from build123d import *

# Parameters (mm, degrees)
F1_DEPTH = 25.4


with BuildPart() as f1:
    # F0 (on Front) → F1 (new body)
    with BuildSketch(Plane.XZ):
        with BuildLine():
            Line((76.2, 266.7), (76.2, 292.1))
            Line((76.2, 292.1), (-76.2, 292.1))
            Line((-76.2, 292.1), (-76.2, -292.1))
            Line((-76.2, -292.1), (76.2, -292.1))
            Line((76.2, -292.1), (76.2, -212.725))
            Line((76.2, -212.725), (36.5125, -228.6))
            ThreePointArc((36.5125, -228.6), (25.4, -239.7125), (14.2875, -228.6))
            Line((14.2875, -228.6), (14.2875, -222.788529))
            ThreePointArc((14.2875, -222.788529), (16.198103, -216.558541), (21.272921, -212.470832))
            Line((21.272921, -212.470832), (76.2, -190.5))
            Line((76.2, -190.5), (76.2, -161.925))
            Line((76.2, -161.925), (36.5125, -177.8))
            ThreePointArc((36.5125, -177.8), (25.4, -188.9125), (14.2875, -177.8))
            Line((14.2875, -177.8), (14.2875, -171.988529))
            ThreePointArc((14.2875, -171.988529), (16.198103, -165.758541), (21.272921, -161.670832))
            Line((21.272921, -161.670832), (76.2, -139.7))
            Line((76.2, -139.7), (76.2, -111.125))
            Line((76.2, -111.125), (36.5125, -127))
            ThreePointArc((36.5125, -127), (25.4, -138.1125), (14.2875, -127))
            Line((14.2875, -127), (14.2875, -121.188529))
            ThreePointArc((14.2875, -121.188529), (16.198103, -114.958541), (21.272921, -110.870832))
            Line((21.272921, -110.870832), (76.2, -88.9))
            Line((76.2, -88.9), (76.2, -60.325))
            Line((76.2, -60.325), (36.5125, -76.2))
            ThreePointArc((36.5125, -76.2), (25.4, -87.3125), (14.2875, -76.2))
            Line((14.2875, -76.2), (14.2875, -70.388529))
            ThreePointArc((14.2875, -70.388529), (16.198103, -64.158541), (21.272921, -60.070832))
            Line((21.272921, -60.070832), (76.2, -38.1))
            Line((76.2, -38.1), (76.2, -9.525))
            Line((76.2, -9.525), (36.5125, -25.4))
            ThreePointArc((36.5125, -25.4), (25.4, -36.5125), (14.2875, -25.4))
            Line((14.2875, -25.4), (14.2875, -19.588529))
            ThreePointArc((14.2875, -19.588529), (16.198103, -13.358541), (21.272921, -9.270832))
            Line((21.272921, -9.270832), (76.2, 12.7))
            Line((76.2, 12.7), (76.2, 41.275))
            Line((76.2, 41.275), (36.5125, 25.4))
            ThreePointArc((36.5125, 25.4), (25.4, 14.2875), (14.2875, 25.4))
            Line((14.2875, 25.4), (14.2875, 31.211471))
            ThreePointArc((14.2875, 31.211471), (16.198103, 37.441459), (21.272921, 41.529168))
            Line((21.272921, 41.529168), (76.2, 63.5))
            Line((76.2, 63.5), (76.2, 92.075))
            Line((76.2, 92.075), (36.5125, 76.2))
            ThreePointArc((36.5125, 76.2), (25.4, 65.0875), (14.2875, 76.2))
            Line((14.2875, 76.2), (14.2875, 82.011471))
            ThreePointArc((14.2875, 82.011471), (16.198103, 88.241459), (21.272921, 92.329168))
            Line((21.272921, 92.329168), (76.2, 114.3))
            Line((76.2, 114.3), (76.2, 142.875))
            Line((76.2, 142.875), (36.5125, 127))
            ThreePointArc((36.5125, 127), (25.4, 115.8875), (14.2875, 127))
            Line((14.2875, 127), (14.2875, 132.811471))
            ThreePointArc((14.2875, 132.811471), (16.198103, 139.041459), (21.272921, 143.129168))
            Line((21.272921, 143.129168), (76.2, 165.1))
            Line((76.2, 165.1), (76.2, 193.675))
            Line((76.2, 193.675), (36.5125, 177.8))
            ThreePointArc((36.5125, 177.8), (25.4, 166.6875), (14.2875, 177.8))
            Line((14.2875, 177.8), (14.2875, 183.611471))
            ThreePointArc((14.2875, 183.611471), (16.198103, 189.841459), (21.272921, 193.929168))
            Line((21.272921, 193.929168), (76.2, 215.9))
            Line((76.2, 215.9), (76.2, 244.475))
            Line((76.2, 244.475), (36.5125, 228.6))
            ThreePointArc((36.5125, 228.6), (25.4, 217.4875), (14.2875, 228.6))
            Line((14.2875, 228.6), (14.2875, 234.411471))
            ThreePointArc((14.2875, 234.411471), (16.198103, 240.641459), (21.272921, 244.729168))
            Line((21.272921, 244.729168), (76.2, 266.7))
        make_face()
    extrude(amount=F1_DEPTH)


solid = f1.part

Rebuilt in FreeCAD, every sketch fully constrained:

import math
import FreeCAD as App
import Part
import Sketcher

V = App.Vector
Q = App.Units.Quantity

doc = App.newDocument("Part")
body = doc.addObject("PartDesign::Body", "Body")

# Sketch on XZ plane
sketch1 = body.newObject("Sketcher::SketchObject", "Sketch")
sketch1.AttachmentSupport = (doc.getObject("XZ_Plane"), [""])
sketch1.MapMode = "FlatFace"
sketch1.addGeometry(Part.LineSegment(V(76.2, 266.7, 0), V(76.2, 292.1, 0)), False)
sketch1.addGeometry(Part.LineSegment(V(76.2, 292.1, 0), V(-76.2, 292.1, 0)), False)
sketch1.addGeometry(Part.LineSegment(V(-76.2, 292.1, 0), V(-76.2, -292.1, 0)), False)
sketch1.addGeometry(Part.LineSegment(V(-76.2, -292.1, 0), V(76.2, -292.1, 0)), False)
sketch1.addGeometry(Part.LineSegment(V(76.2, -292.1, 0), V(76.2, -212.725, 0)), False)
sketch1.addGeometry(Part.LineSegment(V(76.2, -212.725, 0), V(36.5125, -228.6, 0)), False)
sketch1.addGeometry(Part.ArcOfCircle(Part.Circle(V(25.4, -228.6, 0), V(0, 0, 1), 11.1125), math.radians(180), math.radians(360)), False)
sketch1.addGeometry(Part.LineSegment(V(14.2875, -228.6, 0), V(14.2875, -222.788529, 0)), False)
sketch1.addGeometry(Part.ArcOfCircle(Part.Circle(V(25.399999, -222.788528, 0), V(0, 0, 1), 11.112499), math.radians(111.801406), math.radians(180.000003)), False)
sketch1.addGeometry(Part.LineSegment(V(21.272921, -212.470832, 0), V(76.2, -190.5, 0)), False)
sketch1.addGeometry(Part.LineSegment(V(76.2, -190.5, 0), V(76.2, -161.925, 0)), False)
sketch1.addGeometry(Part.LineSegment(V(76.2, -161.925, 0), V(36.5125, -177.8, 0)), False)
sketch1.addGeometry(Part.ArcOfCircle(Part.Circle(V(25.4, -177.8, 0), V(0, 0, 1), 11.1125), math.radians(180), math.radians(360)), False)
sketch1.addGeometry(Part.LineSegment(V(14.2875, -177.8, 0), V(14.2875, -171.988529, 0)), False)
sketch1.addGeometry(Part.ArcOfCircle(Part.Circle(V(25.399999, -171.988528, 0), V(0, 0, 1), 11.112499), math.radians(111.801406), math.radians(180.000003)), False)
sketch1.addGeometry(Part.LineSegment(V(21.272921, -161.670832, 0), V(76.2, -139.7, 0)), False)
sketch1.addGeometry(Part.LineSegment(V(76.2, -139.7, 0), V(76.2, -111.125, 0)), False)
sketch1.addGeometry(Part.LineSegment(V(76.2, -111.125, 0), V(36.5125, -127, 0)), False)
sketch1.addGeometry(Part.ArcOfCircle(Part.Circle(V(25.4, -127, 0), V(0, 0, 1), 11.1125), math.radians(180), math.radians(360)), False)
sketch1.addGeometry(Part.LineSegment(V(14.2875, -127, 0), V(14.2875, -121.188529, 0)), False)
sketch1.addGeometry(Part.ArcOfCircle(Part.Circle(V(25.399999, -121.188528, 0), V(0, 0, 1), 11.112499), math.radians(111.801406), math.radians(180.000003)), False)
sketch1.addGeometry(Part.LineSegment(V(21.272921, -110.870832, 0), V(76.2, -88.9, 0)), False)
sketch1.addGeometry(Part.LineSegment(V(76.2, -88.9, 0), V(76.2, -60.325, 0)), False)
sketch1.addGeometry(Part.LineSegment(V(76.2, -60.325, 0), V(36.5125, -76.2, 0)), False)
sketch1.addGeometry(Part.ArcOfCircle(Part.Circle(V(25.4, -76.2, 0), V(0, 0, 1), 11.1125), math.radians(180), math.radians(360)), False)
sketch1.addGeometry(Part.LineSegment(V(14.2875, -76.2, 0), V(14.2875, -70.388529, 0)), False)
sketch1.addGeometry(Part.ArcOfCircle(Part.Circle(V(25.399999, -70.388528, 0), V(0, 0, 1), 11.112499), math.radians(111.801406), math.radians(180.000003)), False)
sketch1.addGeometry(Part.LineSegment(V(21.272921, -60.070832, 0), V(76.2, -38.1, 0)), False)
sketch1.addGeometry(Part.LineSegment(V(76.2, -38.1, 0), V(76.2, -9.525, 0)), False)
sketch1.addGeometry(Part.LineSegment(V(76.2, -9.525, 0), V(36.5125, -25.4, 0)), False)
sketch1.addGeometry(Part.ArcOfCircle(Part.Circle(V(25.4, -25.4, 0), V(0, 0, 1), 11.1125), math.radians(180), math.radians(360)), False)
sketch1.addGeometry(Part.LineSegment(V(14.2875, -25.4, 0), V(14.2875, -19.588529, 0)), False)
sketch1.addGeometry(Part.ArcOfCircle(Part.Circle(V(25.399999, -19.588528, 0), V(0, 0, 1), 11.112499), math.radians(111.801406), math.radians(180.000003)), False)
sketch1.addGeometry(Part.LineSegment(V(21.272921, -9.270832, 0), V(76.2, 12.7, 0)), False)
sketch1.addGeometry(Part.LineSegment(V(76.2, 12.7, 0), V(76.2, 41.275, 0)), False)
sketch1.addGeometry(Part.LineSegment(V(76.2, 41.275, 0), V(36.5125, 25.4, 0)), False)
sketch1.addGeometry(Part.ArcOfCircle(Part.Circle(V(25.4, 25.4, 0), V(0, 0, 1), 11.1125), math.radians(180), math.radians(360)), False)
sketch1.addGeometry(Part.LineSegment(V(14.2875, 25.4, 0), V(14.2875, 31.211471, 0)), False)
sketch1.addGeometry(Part.ArcOfCircle(Part.Circle(V(25.399999, 31.211472, 0), V(0, 0, 1), 11.112499), math.radians(111.801406), math.radians(180.000003)), False)
sketch1.addGeometry(Part.LineSegment(V(21.272921, 41.529168, 0), V(76.2, 63.5, 0)), False)
sketch1.addGeometry(Part.LineSegment(V(76.2, 63.5, 0), V(76.2, 92.075, 0)), False)
sketch1.addGeometry(Part.LineSegment(V(76.2, 92.075, 0), V(36.5125, 76.2, 0)), False)
sketch1.addGeometry(Part.ArcOfCircle(Part.Circle(V(25.4, 76.2, 0), V(0, 0, 1), 11.1125), math.radians(180), math.radians(360)), False)
sketch1.addGeometry(Part.LineSegment(V(14.2875, 76.2, 0), V(14.2875, 82.011471, 0)), False)
sketch1.addGeometry(Part.ArcOfCircle(Part.Circle(V(25.399999, 82.011472, 0), V(0, 0, 1), 11.112499), math.radians(111.801406), math.radians(180.000003)), False)
sketch1.addGeometry(Part.LineSegment(V(21.272921, 92.329168, 0), V(76.2, 114.3, 0)), False)
sketch1.addGeometry(Part.LineSegment(V(76.2, 114.3, 0), V(76.2, 142.875, 0)), False)
sketch1.addGeometry(Part.LineSegment(V(76.2, 142.875, 0), V(36.5125, 127, 0)), False)
sketch1.addGeometry(Part.ArcOfCircle(Part.Circle(V(25.4, 127, 0), V(0, 0, 1), 11.1125), math.radians(180), math.radians(360)), False)
sketch1.addGeometry(Part.LineSegment(V(14.2875, 127, 0), V(14.2875, 132.811471, 0)), False)
sketch1.addGeometry(Part.ArcOfCircle(Part.Circle(V(25.399999, 132.811472, 0), V(0, 0, 1), 11.112499), math.radians(111.801406), math.radians(180.000003)), False)
sketch1.addGeometry(Part.LineSegment(V(21.272921, 143.129168, 0), V(76.2, 165.1, 0)), False)
sketch1.addGeometry(Part.LineSegment(V(76.2, 165.1, 0), V(76.2, 193.675, 0)), False)
sketch1.addGeometry(Part.LineSegment(V(76.2, 193.675, 0), V(36.5125, 177.8, 0)), False)
sketch1.addGeometry(Part.ArcOfCircle(Part.Circle(V(25.4, 177.8, 0), V(0, 0, 1), 11.1125), math.radians(180), math.radians(360)), False)
sketch1.addGeometry(Part.LineSegment(V(14.2875, 177.8, 0), V(14.2875, 183.611471, 0)), False)
sketch1.addGeometry(Part.ArcOfCircle(Part.Circle(V(25.399999, 183.611472, 0), V(0, 0, 1), 11.112499), math.radians(111.801406), math.radians(180.000003)), False)
sketch1.addGeometry(Part.LineSegment(V(21.272921, 193.929168, 0), V(76.2, 215.9, 0)), False)
sketch1.addGeometry(Part.LineSegment(V(76.2, 215.9, 0), V(76.2, 244.475, 0)), False)
sketch1.addGeometry(Part.LineSegment(V(76.2, 244.475, 0), V(36.5125, 228.6, 0)), False)
sketch1.addGeometry(Part.ArcOfCircle(Part.Circle(V(25.4, 228.6, 0), V(0, 0, 1), 11.1125), math.radians(180), math.radians(360)), False)
sketch1.addGeometry(Part.LineSegment(V(14.2875, 228.6, 0), V(14.2875, 234.411471, 0)), False)
sketch1.addGeometry(Part.ArcOfCircle(Part.Circle(V(25.399999, 234.411472, 0), V(0, 0, 1), 11.112499), math.radians(111.801406), math.radians(180.000003)), False)
sketch1.addGeometry(Part.LineSegment(V(21.272921, 244.729168, 0), V(76.2, 266.7, 0)), False)
sketch1.addConstraint(Sketcher.Constraint("Coincident", 0, 2, 1, 1))
sketch1.addConstraint(Sketcher.Constraint("Coincident", 1, 2, 2, 1))
sketch1.addConstraint(Sketcher.Constraint("Coincident", 2, 2, 3, 1))
sketch1.addConstraint(Sketcher.Constraint("Coincident", 3, 2, 4, 1))
sketch1.addConstraint(Sketcher.Constraint("Coincident", 4, 2, 5, 1))
sketch1.addConstraint(Sketcher.Constraint("Coincident", 5, 2, 6, 2))
sketch1.addConstraint(Sketcher.Constraint("Tangent", 6, 1, 7, 1))
sketch1.addConstraint(Sketcher.Constraint("Tangent", 7, 2, 8, 2))
sketch1.addConstraint(Sketcher.Constraint("Tangent", 8, 1, 9, 1))
sketch1.addConstraint(Sketcher.Constraint("Coincident", 9, 2, 10, 1))
sketch1.addConstraint(Sketcher.Constraint("Coincident", 10, 2, 11, 1))
sketch1.addConstraint(Sketcher.Constraint("Coincident", 11, 2, 12, 2))
sketch1.addConstraint(Sketcher.Constraint("Tangent", 12, 1, 13, 1))
sketch1.addConstraint(Sketcher.Constraint("Tangent", 13, 2, 14, 2))
sketch1.addConstraint(Sketcher.Constraint("Tangent", 14, 1, 15, 1))
sketch1.addConstraint(Sketcher.Constraint("Coincident", 15, 2, 16, 1))
sketch1.addConstraint(Sketcher.Constraint("Coincident", 16, 2, 17, 1))
sketch1.addConstraint(Sketcher.Constraint("Coincident", 17, 2, 18, 2))
sketch1.addConstraint(Sketcher.Constraint("Tangent", 18, 1, 19, 1))
sketch1.addConstraint(Sketcher.Constraint("Tangent", 19, 2, 20, 2))
sketch1.addConstraint(Sketcher.Constraint("Tangent", 20, 1, 21, 1))
sketch1.addConstraint(Sketcher.Constraint("Coincident", 21, 2, 22, 1))
sketch1.addConstraint(Sketcher.Constraint("Coincident", 22, 2, 23, 1))
sketch1.addConstraint(Sketcher.Constraint("Coincident", 23, 2, 24, 2))
sketch1.addConstraint(Sketcher.Constraint("Tangent", 24, 1, 25, 1))
sketch1.addConstraint(Sketcher.Constraint("Tangent", 25, 2, 26, 2))
sketch1.addConstraint(Sketcher.Constraint("Tangent", 26, 1, 27, 1))
sketch1.addConstraint(Sketcher.Constraint("Coincident", 27, 2, 28, 1))
sketch1.addConstraint(Sketcher.Constraint("Coincident", 28, 2, 29, 1))
sketch1.addConstraint(Sketcher.Constraint("Coincident", 29, 2, 30, 2))
sketch1.addConstraint(Sketcher.Constraint("Tangent", 30, 1, 31, 1))
sketch1.addConstraint(Sketcher.Constraint("Tangent", 31, 2, 32, 2))
sketch1.addConstraint(Sketcher.Constraint("Tangent", 32, 1, 33, 1))
sketch1.addConstraint(Sketcher.Constraint("Coincident", 33, 2, 34, 1))
sketch1.addConstraint(Sketcher.Constraint("Coincident", 34, 2, 35, 1))
sketch1.addConstraint(Sketcher.Constraint("Coincident", 35, 2, 36, 2))
sketch1.addConstraint(Sketcher.Constraint("Tangent", 36, 1, 37, 1))
sketch1.addConstraint(Sketcher.Constraint("Tangent", 37, 2, 38, 2))
sketch1.addConstraint(Sketcher.Constraint("Tangent", 38, 1, 39, 1))
sketch1.addConstraint(Sketcher.Constraint("Coincident", 39, 2, 40, 1))
sketch1.addConstraint(Sketcher.Constraint("Coincident", 40, 2, 41, 1))
sketch1.addConstraint(Sketcher.Constraint("Coincident", 41, 2, 42, 2))
sketch1.addConstraint(Sketcher.Constraint("Tangent", 42, 1, 43, 1))
sketch1.addConstraint(Sketcher.Constraint("Tangent", 43, 2, 44, 2))
sketch1.addConstraint(Sketcher.Constraint("Tangent", 44, 1, 45, 1))
sketch1.addConstraint(Sketcher.Constraint("Coincident", 45, 2, 46, 1))
sketch1.addConstraint(Sketcher.Constraint("Coincident", 46, 2, 47, 1))
sketch1.addConstraint(Sketcher.Constraint("Coincident", 47, 2, 48, 2))
sketch1.addConstraint(Sketcher.Constraint("Tangent", 48, 1, 49, 1))
sketch1.addConstraint(Sketcher.Constraint("Tangent", 49, 2, 50, 2))
sketch1.addConstraint(Sketcher.Constraint("Tangent", 50, 1, 51, 1))
sketch1.addConstraint(Sketcher.Constraint("Coincident", 51, 2, 52, 1))
sketch1.addConstraint(Sketcher.Constraint("Coincident", 52, 2, 53, 1))
sketch1.addConstraint(Sketcher.Constraint("Coincident", 53, 2, 54, 2))
sketch1.addConstraint(Sketcher.Constraint("Tangent", 54, 1, 55, 1))
sketch1.addConstraint(Sketcher.Constraint("Tangent", 55, 2, 56, 2))
sketch1.addConstraint(Sketcher.Constraint("Tangent", 56, 1, 57, 1))
sketch1.addConstraint(Sketcher.Constraint("Coincident", 57, 2, 58, 1))
sketch1.addConstraint(Sketcher.Constraint("Coincident", 58, 2, 59, 1))
sketch1.addConstraint(Sketcher.Constraint("Coincident", 59, 2, 60, 2))
sketch1.addConstraint(Sketcher.Constraint("Tangent", 60, 1, 61, 1))
sketch1.addConstraint(Sketcher.Constraint("Tangent", 61, 2, 62, 2))
sketch1.addConstraint(Sketcher.Constraint("Tangent", 62, 1, 63, 1))
sketch1.addConstraint(Sketcher.Constraint("Coincident", 63, 2, 0, 1))
sketch1.addConstraint(Sketcher.Constraint("Vertical", 0))
sketch1.addConstraint(Sketcher.Constraint("Horizontal", 1))
sketch1.addConstraint(Sketcher.Constraint("Vertical", 2))
sketch1.addConstraint(Sketcher.Constraint("Horizontal", 3))
sketch1.addConstraint(Sketcher.Constraint("Vertical", 4))
sketch1.addConstraint(Sketcher.Constraint("Vertical", 7))
sketch1.addConstraint(Sketcher.Constraint("Vertical", 10))
sketch1.addConstraint(Sketcher.Constraint("Vertical", 13))
sketch1.addConstraint(Sketcher.Constraint("Vertical", 16))
sketch1.addConstraint(Sketcher.Constraint("Vertical", 19))
sketch1.addConstraint(Sketcher.Constraint("Vertical", 22))
sketch1.addConstraint(Sketcher.Constraint("Vertical", 25))
sketch1.addConstraint(Sketcher.Constraint("Vertical", 28))
sketch1.addConstraint(Sketcher.Constraint("Vertical", 31))
sketch1.addConstraint(Sketcher.Constraint("Vertical", 34))
sketch1.addConstraint(Sketcher.Constraint("Vertical", 37))
sketch1.addConstraint(Sketcher.Constraint("Vertical", 40))
sketch1.addConstraint(Sketcher.Constraint("Vertical", 43))
sketch1.addConstraint(Sketcher.Constraint("Vertical", 46))
sketch1.addConstraint(Sketcher.Constraint("Vertical", 49))
sketch1.addConstraint(Sketcher.Constraint("Vertical", 52))
sketch1.addConstraint(Sketcher.Constraint("Vertical", 55))
sketch1.addConstraint(Sketcher.Constraint("Vertical", 58))
sketch1.addConstraint(Sketcher.Constraint("Vertical", 61))
sketch1.addConstraint(Sketcher.Constraint("Equal", 6, 8))
sketch1.addConstraint(Sketcher.Constraint("Equal", 8, 12))
sketch1.addConstraint(Sketcher.Constraint("Equal", 12, 14))
sketch1.addConstraint(Sketcher.Constraint("Equal", 14, 18))
sketch1.addConstraint(Sketcher.Constraint("Equal", 18, 20))
sketch1.addConstraint(Sketcher.Constraint("Equal", 20, 24))
sketch1.addConstraint(Sketcher.Constraint("Equal", 24, 26))
sketch1.addConstraint(Sketcher.Constraint("Equal", 26, 30))
sketch1.addConstraint(Sketcher.Constraint("Equal", 30, 32))
sketch1.addConstraint(Sketcher.Constraint("Equal", 32, 36))
sketch1.addConstraint(Sketcher.Constraint("Equal", 36, 38))
sketch1.addConstraint(Sketcher.Constraint("Equal", 38, 42))
sketch1.addConstraint(Sketcher.Constraint("Equal", 42, 44))
sketch1.addConstraint(Sketcher.Constraint("Equal", 44, 48))
sketch1.addConstraint(Sketcher.Constraint("Equal", 48, 50))
sketch1.addConstraint(Sketcher.Constraint("Equal", 50, 54))
sketch1.addConstraint(Sketcher.Constraint("Equal", 54, 56))
sketch1.addConstraint(Sketcher.Constraint("Equal", 56, 60))
sketch1.addConstraint(Sketcher.Constraint("Equal", 60, 62))
sketch1.addConstraint(Sketcher.Constraint("Symmetric", 0, 2, 2, 2, -1, 1))
sketch1.addConstraint(Sketcher.Constraint("Symmetric", 30, 3, 36, 3, -1))
sketch1.addConstraint(Sketcher.Constraint("Symmetric", 24, 3, 42, 3, -1))
sketch1.addConstraint(Sketcher.Constraint("Symmetric", 18, 3, 48, 3, -1))
sketch1.addConstraint(Sketcher.Constraint("Symmetric", 12, 3, 54, 3, -1))
sketch1.addConstraint(Sketcher.Constraint("Symmetric", 6, 3, 60, 3, -1))
sketch1.addConstraint(Sketcher.Constraint("Parallel", 5, 9))
sketch1.addConstraint(Sketcher.Constraint("Parallel", 9, 11))
sketch1.addConstraint(Sketcher.Constraint("Parallel", 11, 15))
sketch1.addConstraint(Sketcher.Constraint("Parallel", 15, 17))
sketch1.addConstraint(Sketcher.Constraint("Parallel", 17, 21))
sketch1.addConstraint(Sketcher.Constraint("Parallel", 21, 23))
sketch1.addConstraint(Sketcher.Constraint("Parallel", 23, 27))
sketch1.addConstraint(Sketcher.Constraint("Parallel", 27, 29))
sketch1.addConstraint(Sketcher.Constraint("Parallel", 29, 33))
sketch1.addConstraint(Sketcher.Constraint("Parallel", 33, 35))
sketch1.addConstraint(Sketcher.Constraint("Parallel", 35, 39))
sketch1.addConstraint(Sketcher.Constraint("Parallel", 39, 41))
sketch1.addConstraint(Sketcher.Constraint("Parallel", 41, 45))
sketch1.addConstraint(Sketcher.Constraint("Parallel", 45, 47))
sketch1.addConstraint(Sketcher.Constraint("Parallel", 47, 51))
sketch1.addConstraint(Sketcher.Constraint("Parallel", 51, 53))
sketch1.addConstraint(Sketcher.Constraint("Parallel", 53, 57))
sketch1.addConstraint(Sketcher.Constraint("Parallel", 57, 59))
sketch1.addConstraint(Sketcher.Constraint("Parallel", 59, 63))
sketch1.addConstraint(Sketcher.Constraint("Horizontal", 6, 3, 5, 2))
sketch1.addConstraint(Sketcher.Constraint("Horizontal", 12, 3, 11, 2))
sketch1.addConstraint(Sketcher.Constraint("Horizontal", 18, 3, 17, 2))
sketch1.addConstraint(Sketcher.Constraint("Horizontal", 24, 3, 23, 2))
sketch1.addConstraint(Sketcher.Constraint("Horizontal", 30, 3, 29, 2))
sketch1.addConstraint(Sketcher.Constraint("Horizontal", 36, 3, 35, 2))
sketch1.addConstraint(Sketcher.Constraint("Horizontal", 42, 3, 41, 2))
sketch1.addConstraint(Sketcher.Constraint("Horizontal", 48, 3, 47, 2))
sketch1.addConstraint(Sketcher.Constraint("Horizontal", 54, 3, 53, 2))
sketch1.addConstraint(Sketcher.Constraint("Horizontal", 60, 3, 59, 2))
sketch1.addConstraint(Sketcher.Constraint("Vertical", 8, 3, 12, 3))
sketch1.addConstraint(Sketcher.Constraint("Vertical", 14, 3, 18, 3))
sketch1.addConstraint(Sketcher.Constraint("Vertical", 20, 3, 24, 3))
sketch1.addConstraint(Sketcher.Constraint("Vertical", 26, 3, 30, 3))
sketch1.addConstraint(Sketcher.Constraint("Vertical", 0, 2, 3, 2))
sketch1.addConstraint(Sketcher.Constraint("Vertical", 4, 2, 9, 2))
sketch1.addConstraint(Sketcher.Constraint("Vertical", 10, 2, 15, 2))
sketch1.addConstraint(Sketcher.Constraint("Vertical", 16, 2, 21, 2))
sketch1.addConstraint(Sketcher.Constraint("Vertical", 22, 2, 27, 2))
sketch1.addConstraint(Sketcher.Constraint("Vertical", 28, 2, 33, 2))
sketch1.addConstraint(Sketcher.Constraint("Vertical", 34, 2, 39, 2))
sketch1.addConstraint(Sketcher.Constraint("Vertical", 40, 2, 45, 2))
sketch1.addConstraint(Sketcher.Constraint("Vertical", 46, 2, 51, 2))
sketch1.addConstraint(Sketcher.Constraint("Vertical", 52, 2, 57, 2))
sketch1.addConstraint(Sketcher.Constraint("Equal", 7, 13))
sketch1.addConstraint(Sketcher.Constraint("Equal", 10, 16))
sketch1.addConstraint(Sketcher.Constraint("Equal", 13, 19))
sketch1.addConstraint(Sketcher.Constraint("Equal", 16, 22))
sketch1.addConstraint(Sketcher.Constraint("Equal", 19, 25))
sketch1.addConstraint(Sketcher.Constraint("Equal", 22, 28))
sketch1.addConstraint(Sketcher.Constraint("Equal", 25, 31))
sketch1.addConstraint(Sketcher.Constraint("Equal", 28, 34))
sketch1.addConstraint(Sketcher.Constraint("Equal", 31, 37))
sketch1.addConstraint(Sketcher.Constraint("Equal", 37, 43))
sketch1.addConstraint(Sketcher.Constraint("Equal", 43, 49))
sketch1.addConstraint(Sketcher.Constraint("Equal", 49, 55))
sketch1.addConstraint(Sketcher.Constraint("Equal", 55, 61))
sketch1.addConstraint(Sketcher.Constraint("DistanceX", 1, 2, 1, 1, Q("6 in")))
sketch1.addConstraint(Sketcher.Constraint("DistanceY", 0, 1, 0, 2, Q("1 in")))
sketch1.addConstraint(Sketcher.Constraint("DistanceY", 2, 2, 2, 1, Q("23 in")))
sketch1.addConstraint(Sketcher.Constraint("DistanceX", -1, 1, 6, 3, Q("1 in")))
sketch1.addConstraint(Sketcher.Constraint("DistanceY", 6, 3, -1, 1, Q("9 in")))
sketch1.addConstraint(Sketcher.Constraint("Radius", 6, Q("0.4375 in")))
sketch1.addConstraint(Sketcher.Constraint("DistanceY", 4, 1, 4, 2, Q("3.125 in")))
pad1 = body.newObject("PartDesign::Pad", "Pad")
pad1.Profile = sketch1
pad1.Length = Q("1 in")

doc.recompute()
